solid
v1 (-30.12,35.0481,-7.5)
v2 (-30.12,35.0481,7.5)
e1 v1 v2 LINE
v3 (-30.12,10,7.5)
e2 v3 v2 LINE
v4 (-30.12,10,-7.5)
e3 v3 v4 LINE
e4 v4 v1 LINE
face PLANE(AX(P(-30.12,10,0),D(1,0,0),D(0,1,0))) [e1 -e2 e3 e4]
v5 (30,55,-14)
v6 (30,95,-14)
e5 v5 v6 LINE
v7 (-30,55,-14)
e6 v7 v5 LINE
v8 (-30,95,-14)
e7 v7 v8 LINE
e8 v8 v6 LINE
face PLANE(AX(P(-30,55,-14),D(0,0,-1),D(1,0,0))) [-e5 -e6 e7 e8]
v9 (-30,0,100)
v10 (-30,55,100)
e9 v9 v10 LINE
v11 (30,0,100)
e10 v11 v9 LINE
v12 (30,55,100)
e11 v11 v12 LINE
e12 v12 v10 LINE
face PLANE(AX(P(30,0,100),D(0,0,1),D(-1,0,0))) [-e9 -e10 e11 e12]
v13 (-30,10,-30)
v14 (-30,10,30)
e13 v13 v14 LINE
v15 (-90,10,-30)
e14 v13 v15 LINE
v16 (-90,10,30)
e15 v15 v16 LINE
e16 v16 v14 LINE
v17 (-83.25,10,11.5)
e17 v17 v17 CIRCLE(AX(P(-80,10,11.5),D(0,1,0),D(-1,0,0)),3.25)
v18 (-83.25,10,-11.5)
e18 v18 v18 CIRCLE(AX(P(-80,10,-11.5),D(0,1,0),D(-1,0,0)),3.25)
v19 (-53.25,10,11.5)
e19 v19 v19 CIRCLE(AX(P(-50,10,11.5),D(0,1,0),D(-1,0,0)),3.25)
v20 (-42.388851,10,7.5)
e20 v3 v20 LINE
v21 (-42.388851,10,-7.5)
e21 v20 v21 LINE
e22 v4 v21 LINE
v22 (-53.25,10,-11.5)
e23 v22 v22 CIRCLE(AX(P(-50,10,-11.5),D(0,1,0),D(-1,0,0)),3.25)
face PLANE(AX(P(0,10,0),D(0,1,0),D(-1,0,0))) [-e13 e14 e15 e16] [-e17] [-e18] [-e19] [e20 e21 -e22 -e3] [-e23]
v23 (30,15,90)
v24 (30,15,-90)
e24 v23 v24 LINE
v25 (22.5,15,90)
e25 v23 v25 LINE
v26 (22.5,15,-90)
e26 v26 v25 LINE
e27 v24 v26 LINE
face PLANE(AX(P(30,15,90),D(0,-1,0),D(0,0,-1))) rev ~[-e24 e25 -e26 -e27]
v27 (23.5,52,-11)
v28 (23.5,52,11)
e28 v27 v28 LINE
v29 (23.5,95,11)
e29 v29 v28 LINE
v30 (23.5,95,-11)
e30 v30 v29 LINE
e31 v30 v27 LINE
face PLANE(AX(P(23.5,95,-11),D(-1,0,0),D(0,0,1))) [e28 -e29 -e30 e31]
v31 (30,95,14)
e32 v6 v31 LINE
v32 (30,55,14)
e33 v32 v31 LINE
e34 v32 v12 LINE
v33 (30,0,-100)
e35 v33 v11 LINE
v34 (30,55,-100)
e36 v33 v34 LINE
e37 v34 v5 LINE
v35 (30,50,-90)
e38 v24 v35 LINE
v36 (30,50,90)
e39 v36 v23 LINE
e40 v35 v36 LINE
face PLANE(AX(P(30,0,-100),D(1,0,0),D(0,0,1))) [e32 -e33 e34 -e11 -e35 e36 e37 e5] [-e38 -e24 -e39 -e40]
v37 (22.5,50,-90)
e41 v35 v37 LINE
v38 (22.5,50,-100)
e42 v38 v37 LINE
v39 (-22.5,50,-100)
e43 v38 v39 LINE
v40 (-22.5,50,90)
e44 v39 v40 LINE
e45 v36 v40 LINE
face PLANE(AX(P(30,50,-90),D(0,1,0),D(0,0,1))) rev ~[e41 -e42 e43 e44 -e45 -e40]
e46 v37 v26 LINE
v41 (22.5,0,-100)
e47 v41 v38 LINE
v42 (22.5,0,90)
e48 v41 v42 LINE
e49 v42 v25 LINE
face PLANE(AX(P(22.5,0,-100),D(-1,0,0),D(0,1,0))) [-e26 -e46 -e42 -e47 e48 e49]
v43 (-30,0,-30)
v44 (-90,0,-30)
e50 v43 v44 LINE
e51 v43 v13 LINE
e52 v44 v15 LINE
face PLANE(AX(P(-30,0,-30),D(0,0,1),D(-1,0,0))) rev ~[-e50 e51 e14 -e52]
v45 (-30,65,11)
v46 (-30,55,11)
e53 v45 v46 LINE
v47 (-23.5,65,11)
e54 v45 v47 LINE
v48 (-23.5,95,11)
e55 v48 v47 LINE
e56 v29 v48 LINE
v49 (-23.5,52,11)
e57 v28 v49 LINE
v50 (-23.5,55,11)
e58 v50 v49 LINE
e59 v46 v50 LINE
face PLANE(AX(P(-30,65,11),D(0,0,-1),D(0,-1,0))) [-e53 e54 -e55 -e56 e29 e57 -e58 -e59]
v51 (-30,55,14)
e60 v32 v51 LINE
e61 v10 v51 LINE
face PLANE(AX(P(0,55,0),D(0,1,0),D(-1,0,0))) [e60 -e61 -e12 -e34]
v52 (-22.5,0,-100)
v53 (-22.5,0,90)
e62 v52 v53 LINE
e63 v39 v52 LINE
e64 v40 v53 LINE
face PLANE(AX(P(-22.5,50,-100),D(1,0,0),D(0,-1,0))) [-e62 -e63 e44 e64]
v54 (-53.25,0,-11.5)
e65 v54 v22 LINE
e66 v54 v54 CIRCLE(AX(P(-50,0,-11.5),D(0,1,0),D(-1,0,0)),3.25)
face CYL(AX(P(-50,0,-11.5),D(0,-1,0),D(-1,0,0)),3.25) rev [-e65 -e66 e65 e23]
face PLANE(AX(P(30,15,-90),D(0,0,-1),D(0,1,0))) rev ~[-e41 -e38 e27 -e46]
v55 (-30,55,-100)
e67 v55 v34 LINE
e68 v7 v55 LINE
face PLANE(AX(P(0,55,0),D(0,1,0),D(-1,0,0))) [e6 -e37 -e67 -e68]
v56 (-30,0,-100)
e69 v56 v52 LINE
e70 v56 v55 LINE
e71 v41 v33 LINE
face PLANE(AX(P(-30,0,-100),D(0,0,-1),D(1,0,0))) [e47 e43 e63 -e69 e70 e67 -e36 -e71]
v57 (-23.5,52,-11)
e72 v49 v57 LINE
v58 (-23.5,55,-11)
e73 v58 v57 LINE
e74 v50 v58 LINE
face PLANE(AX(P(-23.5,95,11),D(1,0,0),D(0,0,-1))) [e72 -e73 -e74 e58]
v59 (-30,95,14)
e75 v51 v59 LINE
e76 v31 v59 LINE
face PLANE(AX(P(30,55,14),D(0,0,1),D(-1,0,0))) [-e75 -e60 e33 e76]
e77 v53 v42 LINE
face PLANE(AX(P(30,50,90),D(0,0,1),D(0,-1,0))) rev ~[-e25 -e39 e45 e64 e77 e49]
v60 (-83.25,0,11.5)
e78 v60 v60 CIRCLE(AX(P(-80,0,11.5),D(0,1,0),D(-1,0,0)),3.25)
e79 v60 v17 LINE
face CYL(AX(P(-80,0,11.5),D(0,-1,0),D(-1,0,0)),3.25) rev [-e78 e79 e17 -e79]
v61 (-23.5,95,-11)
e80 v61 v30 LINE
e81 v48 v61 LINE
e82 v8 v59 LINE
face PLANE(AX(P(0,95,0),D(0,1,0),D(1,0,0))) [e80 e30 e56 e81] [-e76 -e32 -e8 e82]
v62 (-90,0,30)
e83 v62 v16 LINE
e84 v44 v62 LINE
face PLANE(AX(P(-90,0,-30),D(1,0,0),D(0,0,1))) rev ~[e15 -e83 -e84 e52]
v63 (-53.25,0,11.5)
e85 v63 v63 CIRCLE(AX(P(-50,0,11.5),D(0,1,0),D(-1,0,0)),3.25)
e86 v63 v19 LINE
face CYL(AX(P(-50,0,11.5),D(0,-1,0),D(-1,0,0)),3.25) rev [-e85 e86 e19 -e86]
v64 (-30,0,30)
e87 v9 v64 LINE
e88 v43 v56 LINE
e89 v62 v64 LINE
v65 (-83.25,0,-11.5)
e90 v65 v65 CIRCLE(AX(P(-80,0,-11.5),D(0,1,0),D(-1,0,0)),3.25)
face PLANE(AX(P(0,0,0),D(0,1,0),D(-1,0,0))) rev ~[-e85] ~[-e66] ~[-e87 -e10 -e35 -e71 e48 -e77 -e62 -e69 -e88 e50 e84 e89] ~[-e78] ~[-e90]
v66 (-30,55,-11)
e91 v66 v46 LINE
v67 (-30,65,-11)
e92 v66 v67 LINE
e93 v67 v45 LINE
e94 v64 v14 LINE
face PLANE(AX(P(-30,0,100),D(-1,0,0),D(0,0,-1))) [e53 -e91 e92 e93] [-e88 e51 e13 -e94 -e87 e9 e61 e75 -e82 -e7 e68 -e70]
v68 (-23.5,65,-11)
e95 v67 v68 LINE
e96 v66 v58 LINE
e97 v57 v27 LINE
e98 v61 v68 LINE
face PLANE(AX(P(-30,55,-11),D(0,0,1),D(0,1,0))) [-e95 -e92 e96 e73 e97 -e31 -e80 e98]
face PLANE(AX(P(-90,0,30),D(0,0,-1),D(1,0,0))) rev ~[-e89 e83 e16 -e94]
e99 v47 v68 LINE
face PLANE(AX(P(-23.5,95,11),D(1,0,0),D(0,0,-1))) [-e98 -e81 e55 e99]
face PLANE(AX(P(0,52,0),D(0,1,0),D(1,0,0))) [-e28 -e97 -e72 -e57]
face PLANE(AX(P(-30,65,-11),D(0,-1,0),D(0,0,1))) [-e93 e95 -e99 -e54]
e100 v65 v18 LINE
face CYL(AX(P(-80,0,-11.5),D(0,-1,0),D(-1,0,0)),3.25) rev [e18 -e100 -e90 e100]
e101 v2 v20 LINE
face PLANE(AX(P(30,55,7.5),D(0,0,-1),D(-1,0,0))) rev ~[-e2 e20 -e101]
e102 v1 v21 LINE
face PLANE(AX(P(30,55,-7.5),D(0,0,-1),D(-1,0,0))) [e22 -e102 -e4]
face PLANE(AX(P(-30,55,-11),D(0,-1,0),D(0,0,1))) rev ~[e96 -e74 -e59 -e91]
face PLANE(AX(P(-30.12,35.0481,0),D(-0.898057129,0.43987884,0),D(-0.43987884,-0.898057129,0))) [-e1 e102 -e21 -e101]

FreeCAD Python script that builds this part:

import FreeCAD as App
import Part
import Sketcher

V = App.Vector
Q = App.Units.Quantity

doc = App.newDocument("Part")
body = doc.addObject("PartDesign::Body", "Body")

# Sketch on XZ plane
sketch1 = doc.addObject("Sketcher::SketchObject", "Sketch")
body.addObject(sketch1)
sketch1.AttachmentSupport = (doc.XZ_Plane, [""])
sketch1.MapMode = "FlatFace"
sketch1.addGeometry([
    Part.LineSegment(V(-30, 100, 0), V(30, 100, 0)),
    Part.LineSegment(V(30, 100, 0), V(30, -100, 0)),
    Part.LineSegment(V(30, -100, 0), V(-30, -100, 0)),
    Part.LineSegment(V(-30, -100, 0), V(-30, 100, 0)),
], False)
sketch1.addConstraint([
    Sketcher.Constraint("Coincident", 0, 2, 1, 1),
    Sketcher.Constraint("Coincident", 1, 2, 2, 1),
    Sketcher.Constraint("Coincident", 2, 2, 3, 1),
    Sketcher.Constraint("Coincident", 3, 2, 0, 1),
    Sketcher.Constraint("Horizontal", 0),
    Sketcher.Constraint("Vertical", 1),
    Sketcher.Constraint("Horizontal", 2),
    Sketcher.Constraint("Vertical", 3),
    Sketcher.Constraint("Symmetric", 0, 2, 2, 2, -1, 1),
    Sketcher.Constraint("DistanceX", 0, 1, 0, 2, Q("60 mm")),
    Sketcher.Constraint("DistanceY", 1, 2, 1, 1, Q("200 mm")),
])
pad1 = doc.addObject("PartDesign::Pad", "Pad")
body.addObject(pad1)
pad1.Profile = sketch1
pad1.Length = 55
pad1.Reversed = True

# Sketch on XY plane
sketch2 = doc.addObject("Sketcher::SketchObject", "Sketch001")
body.addObject(sketch2)
sketch2.AttachmentSupport = (doc.XY_Plane, [""])
sketch2.MapMode = "FlatFace"
sketch2.AttachmentOffset = App.Placement(V(0, 0, -100), App.Rotation())
sketch2.addGeometry([
    Part.LineSegment(V(-22, 50, 0), V(22, 50, 0)),
    Part.LineSegment(V(22, 50, 0), V(22, 0, 0)),
    Part.LineSegment(V(22, 0, 0), V(-22, 0, 0)),
    Part.LineSegment(V(-22, 0, 0), V(-22, 50, 0)),
], False)
sketch2.addConstraint([
    Sketcher.Constraint("Coincident", 0, 2, 1, 1),
    Sketcher.Constraint("Coincident", 1, 2, 2, 1),
    Sketcher.Constraint("Coincident", 2, 2, 3, 1),
    Sketcher.Constraint("Coincident", 3, 2, 0, 1),
    Sketcher.Constraint("Horizontal", 0),
    Sketcher.Constraint("Vertical", 1),
    Sketcher.Constraint("Horizontal", 2),
    Sketcher.Constraint("Vertical", 3),
    Sketcher.Constraint("Symmetric", 1, 2, 2, 2, -1, 1),
    Sketcher.Constraint("DistanceX", 0, 1, 0, 2, Q("45 mm")),
    Sketcher.Constraint("DistanceY", 1, 2, 1, 1, Q("50 mm")),
])
pocket1 = doc.addObject("PartDesign::Pocket", "Pocket")
body.addObject(pocket1)
pocket1.Profile = sketch2
pocket1.Length = 190
pocket1.Reversed = True

# Sketch on YZ plane
sketch3 = doc.addObject("Sketcher::SketchObject", "Sketch002")
body.addObject(sketch3)
sketch3.AttachmentSupport = (doc.YZ_Plane, [""])
sketch3.MapMode = "FlatFace"
sketch3.AttachmentOffset = App.Placement(V(0, 0, 30), App.Rotation())
sketch3.addGeometry([
    Part.LineSegment(V(50, -90, 0), V(50, 90, 0)),
    Part.LineSegment(V(50, 90, 0), V(15, 90, 0)),
    Part.LineSegment(V(15, 90, 0), V(15, -90, 0)),
    Part.LineSegment(V(15, -90, 0), V(50, -90, 0)),
], False)
sketch3.addConstraint([
    Sketcher.Constraint("Coincident", 0, 2, 1, 1),
    Sketcher.Constraint("Coincident", 1, 2, 2, 1),
    Sketcher.Constraint("Coincident", 2, 2, 3, 1),
    Sketcher.Constraint("Coincident", 3, 2, 0, 1),
    Sketcher.Constraint("Vertical", 0),
    Sketcher.Constraint("Horizontal", 1),
    Sketcher.Constraint("Vertical", 2),
    Sketcher.Constraint("Horizontal", 3),
    Sketcher.Constraint("DistanceX", -1, 1, 1, 2, Q("15 mm")),
    Sketcher.Constraint("DistanceX", 1, 2, 1, 1, Q("35 mm")),
    Sketcher.Constraint("DistanceY", 0, 1, 0, 2, Q("180 mm")),
    Sketcher.Constraint("DistanceY", -1, 1, 0, 2, Q("90 mm")),
])
pocket2 = doc.addObject("PartDesign::Pocket", "Pocket001")
body.addObject(pocket2)
pocket2.Profile = sketch3
pocket2.Length = 10

# Sketch on XZ plane
sketch4 = doc.addObject("Sketcher::SketchObject", "Sketch003")
body.addObject(sketch4)
sketch4.AttachmentSupport = (doc.XZ_Plane, [""])
sketch4.MapMode = "FlatFace"
sketch4.addGeometry([
    Part.LineSegment(V(-30, 30, 0), V(-30, -30, 0)),  # 0
    Part.LineSegment(V(-30, -30, 0), V(-90, -30, 0)),  # 1
    Part.LineSegment(V(-90, -30, 0), V(-90, 30, 0)),  # 2
    Part.LineSegment(V(-90, 30, 0), V(-30, 30, 0)),  # 3
    Part.Circle(V(-50, -11.5, 0), V(0, 0, 1), 3.2),  # 4
    Part.Circle(V(-80, -11.5, 0), V(0, 0, 1), 3.2),  # 5
    Part.Circle(V(-50, 11.5, 0), V(0, 0, 1), 3.2),  # 6
    Part.Circle(V(-80, 11.5, 0), V(0, 0, 1), 3.2),  # 7
], False)
sketch4.addConstraint([
    Sketcher.Constraint("Coincident", 0, 2, 1, 1),
    Sketcher.Constraint("Coincident", 1, 2, 2, 1),
    Sketcher.Constraint("Coincident", 2, 2, 3, 1),
    Sketcher.Constraint("Coincident", 3, 2, 0, 1),
    Sketcher.Constraint("Vertical", 0),
    Sketcher.Constraint("Horizontal", 1),
    Sketcher.Constraint("Vertical", 2),
    Sketcher.Constraint("Horizontal", 3),
    Sketcher.Constraint("Equal", 4, 5),
    Sketcher.Constraint("Equal", 5, 6),
    Sketcher.Constraint("Equal", 6, 7),
    Sketcher.Constraint("Symmetric", 4, 3, 6, 3, -1),
    Sketcher.Constraint("Symmetric", 5, 3, 7, 3, -1),
    Sketcher.Constraint("Horizontal", 4, 3, 5, 3),
    Sketcher.Constraint("Equal", 3, 0),
    Sketcher.Constraint("Diameter", 4, Q("6.5 mm")),
    Sketcher.Constraint("DistanceX", 1, 2, 1, 1, Q("60 mm")),
    Sketcher.Constraint("DistanceX", 0, 2, -1, 1, Q("30 mm")),
    Sketcher.Constraint("DistanceY", 0, 2, -1, 1, Q("30 mm")),
    Sketcher.Constraint("DistanceX", 5, 3, 4, 3, Q("30 mm")),
    Sketcher.Constraint("DistanceY", 4, 3, 6, 3, Q("23 mm")),
    Sketcher.Constraint("DistanceX", 4, 3, 0, 2, Q("20 mm")),
])
pad2 = doc.addObject("PartDesign::Pad", "Pad001")
body.addObject(pad2)
pad2.Profile = sketch4
pad2.Length = 10
pad2.Reversed = True

# Sketch on XZ plane
sketch5 = doc.addObject("Sketcher::SketchObject", "Sketch004")
body.addObject(sketch5)
sketch5.AttachmentSupport = (doc.XZ_Plane, [""])
sketch5.MapMode = "FlatFace"
sketch5.AttachmentOffset = App.Placement(V(0, 0, -55), App.Rotation())
sketch5.addGeometry([
    Part.LineSegment(V(30, -14, 0), V(-30, -14, 0)),
    Part.LineSegment(V(-30, -14, 0), V(-30, 14, 0)),
    Part.LineSegment(V(-30, 14, 0), V(30, 14, 0)),
    Part.LineSegment(V(30, 14, 0), V(30, -14, 0)),
], False)
sketch5.addConstraint([
    Sketcher.Constraint("Coincident", 0, 2, 1, 1),
    Sketcher.Constraint("Coincident", 1, 2, 2, 1),
    Sketcher.Constraint("Coincident", 2, 2, 3, 1),
    Sketcher.Constraint("Coincident", 3, 2, 0, 1),
    Sketcher.Constraint("Horizontal", 0),
    Sketcher.Constraint("Vertical", 1),
    Sketcher.Constraint("Horizontal", 2),
    Sketcher.Constraint("Vertical", 3),
    Sketcher.Constraint("Symmetric", 0, 2, 2, 2, -1, 1),
    Sketcher.Constraint("DistanceY", 1, 1, 1, 2, Q("28 mm")),
    Sketcher.Constraint("DistanceX", 0, 2, 0, 1, Q("60 mm")),
])
pad3 = doc.addObject("PartDesign::Pad", "Pad002")
body.addObject(pad3)
pad3.Profile = sketch5
pad3.Length = 40
pad3.Reversed = True

# Sketch on XZ plane
sketch6 = doc.addObject("Sketcher::SketchObject", "Sketch005")
body.addObject(sketch6)
sketch6.AttachmentSupport = (doc.XZ_Plane, [""])
sketch6.MapMode = "FlatFace"
sketch6.AttachmentOffset = App.Placement(V(0, 0, -95), App.Rotation())
sketch6.addGeometry([
    Part.LineSegment(V(24, -11, 0), V(-24, -11, 0)),
    Part.LineSegment(V(-24, -11, 0), V(-24, 11, 0)),
    Part.LineSegment(V(-24, 11, 0), V(24, 11, 0)),
    Part.LineSegment(V(24, 11, 0), V(24, -11, 0)),
], False)
sketch6.addConstraint([
    Sketcher.Constraint("Coincident", 0, 2, 1, 1),
    Sketcher.Constraint("Coincident", 1, 2, 2, 1),
    Sketcher.Constraint("Coincident", 2, 2, 3, 1),
    Sketcher.Constraint("Coincident", 3, 2, 0, 1),
    Sketcher.Constraint("Horizontal", 0),
    Sketcher.Constraint("Vertical", 1),
    Sketcher.Constraint("Horizontal", 2),
    Sketcher.Constraint("Vertical", 3),
    Sketcher.Constraint("Symmetric", 0, 2, 2, 2, -1, 1),
    Sketcher.Constraint("DistanceX", 0, 2, 0, 1, Q("47 mm")),
    Sketcher.Constraint("DistanceY", 1, 1, 1, 2, Q("22 mm")),
])
pocket3 = doc.addObject("PartDesign::Pocket", "Pocket002")
body.addObject(pocket3)
pocket3.Profile = sketch6
pocket3.Length = 43
pocket3.Reversed = True

# Sketch on YZ plane
sketch7 = doc.addObject("Sketcher::SketchObject", "Sketch006")
body.addObject(sketch7)
sketch7.AttachmentSupport = (doc.YZ_Plane, [""])
sketch7.MapMode = "FlatFace"
sketch7.AttachmentOffset = App.Placement(V(0, 0, -30), App.Rotation())
sketch7.addGeometry([
    Part.LineSegment(V(65, -11, 0), V(55, -11, 0)),
    Part.LineSegment(V(55, -11, 0), V(55, 11, 0)),
    Part.LineSegment(V(55, 11, 0), V(65, 11, 0)),
    Part.LineSegment(V(65, 11, 0), V(65, -11, 0)),
], False)
sketch7.addConstraint([
    Sketcher.Constraint("Coincident", 0, 2, 1, 1),
    Sketcher.Constraint("Coincident", 1, 2, 2, 1),
    Sketcher.Constraint("Coincident", 2, 2, 3, 1),
    Sketcher.Constraint("Coincident", 3, 2, 0, 1),
    Sketcher.Constraint("Horizontal", 0),
    Sketcher.Constraint("Vertical", 1),
    Sketcher.Constraint("Horizontal", 2),
    Sketcher.Constraint("Vertical", 3),
    Sketcher.Constraint("DistanceX", 0, 2, 0, 1, Q("10 mm")),
    Sketcher.Constraint("DistanceY", 1, 1, 1, 2, Q("22 mm")),
    Sketcher.Constraint("DistanceX", -1, 1, 0, 2, Q("55 mm")),
    Sketcher.Constraint("DistanceY", 0, 2, -1, 1, Q("11 mm")),
])
pocket4 = doc.addObject("PartDesign::Pocket", "Pocket003")
body.addObject(pocket4)
pocket4.Profile = sketch7
pocket4.Length = 10
pocket4.Reversed = True

# Sketch on XY plane
sketch8 = doc.addObject("Sketcher::SketchObject", "Sketch007")
body.addObject(sketch8)
sketch8.AttachmentSupport = (doc.XY_Plane, [""])
sketch8.MapMode = "FlatFace"
sketch8.addGeometry([
    Part.LineSegment(V(-30, 35, 0), V(-30, 10, 0)),
    Part.LineSegment(V(-30, 10, 0), V(-42, 10, 0)),
    Part.LineSegment(V(-42, 10, 0), V(-30, 35, 0)),
], False)
sketch8.addConstraint([
    Sketcher.Constraint("Coincident", 0, 2, 1, 1),
    Sketcher.Constraint("Coincident", 1, 2, 2, 1),
    Sketcher.Constraint("Coincident", 2, 2, 0, 1),
    Sketcher.Constraint("Vertical", 0),
    Sketcher.Constraint("Horizontal", 1),
    Sketcher.Constraint("DistanceY", -1, 1, 0, 2, Q("10 mm")),
    Sketcher.Constraint("DistanceY", 0, 2, 0, 1, Q("25.048 mm")),
    Sketcher.Constraint("DistanceX", 0, 2, -1, 1, Q("30.12 mm")),
    Sketcher.Constraint("DistanceX", 1, 2, 1, 1, Q("12.2689 mm")),
])
pad4 = doc.addObject("PartDesign::Pad", "Pad003")
body.addObject(pad4)
pad4.Profile = sketch8
pad4.Length = 15
pad4.Midplane = True

doc.recompute()
